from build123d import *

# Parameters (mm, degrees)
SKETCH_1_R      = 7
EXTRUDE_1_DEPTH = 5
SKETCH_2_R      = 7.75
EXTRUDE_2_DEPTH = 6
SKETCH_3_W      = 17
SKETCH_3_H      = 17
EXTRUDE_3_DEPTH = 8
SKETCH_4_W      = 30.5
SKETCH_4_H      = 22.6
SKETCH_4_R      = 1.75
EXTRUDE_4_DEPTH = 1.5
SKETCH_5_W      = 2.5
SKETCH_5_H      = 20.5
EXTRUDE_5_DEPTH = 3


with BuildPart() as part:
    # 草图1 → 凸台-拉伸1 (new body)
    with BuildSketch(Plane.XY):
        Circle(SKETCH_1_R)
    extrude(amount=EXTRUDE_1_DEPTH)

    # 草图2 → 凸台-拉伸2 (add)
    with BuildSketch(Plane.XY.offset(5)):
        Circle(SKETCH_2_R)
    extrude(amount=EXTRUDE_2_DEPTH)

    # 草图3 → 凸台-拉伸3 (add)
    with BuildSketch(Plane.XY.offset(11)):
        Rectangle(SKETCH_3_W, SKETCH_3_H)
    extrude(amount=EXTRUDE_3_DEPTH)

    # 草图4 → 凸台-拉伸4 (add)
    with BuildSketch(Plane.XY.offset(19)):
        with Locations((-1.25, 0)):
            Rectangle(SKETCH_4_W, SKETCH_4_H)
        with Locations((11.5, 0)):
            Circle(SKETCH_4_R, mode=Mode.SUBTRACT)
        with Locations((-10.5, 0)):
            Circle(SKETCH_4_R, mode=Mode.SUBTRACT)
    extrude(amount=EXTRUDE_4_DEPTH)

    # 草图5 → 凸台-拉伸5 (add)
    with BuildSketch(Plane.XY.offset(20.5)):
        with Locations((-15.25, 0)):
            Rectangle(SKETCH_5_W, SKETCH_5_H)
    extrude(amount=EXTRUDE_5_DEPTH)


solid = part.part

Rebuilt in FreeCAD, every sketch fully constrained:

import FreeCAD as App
import Part
import Sketcher

V = App.Vector
Q = App.Units.Quantity

doc = App.newDocument("Part")
params = doc.addObject("Spreadsheet::Sheet", "Params")
for row, (alias, value) in enumerate([
    ("sketch1_diameter", "14 mm"),
    ("pad1_length", "5 mm"),
    ("sketch2_diameter", "15.5 mm"),
    ("pad2_length", "6 mm"),
    ("sketch3_width", "17 mm"),
    ("pad3_length", "8 mm"),
    ("sketch4_diameter", "3.5 mm"),
    ("sketch4_width", "30.5 mm"),
    ("sketch4_height", "22.6 mm"),
    ("pad4_length", "1.5 mm"),
    ("sketch5_width", "2.5 mm"),
    ("sketch5_height", "20.5 mm"),
    ("pad5_length", "3 mm"),
], start=1):
    params.set(f"A{row}", alias)
    params.set(f"B{row}", "=" + value)
    params.setAlias(f"B{row}", alias)

body = doc.addObject("PartDesign::Body", "Body")

sketch1 = body.newObject("Sketcher::SketchObject", "Sketch")
sketch1.AttachmentSupport = (doc.getObject("XY_Plane"), [""])
sketch1.MapMode = "FlatFace"
sketch1.addGeometry(Part.Circle(V(0, 0, 0), V(0, 0, 1), 7), False)
sketch1.addConstraint([
    Sketcher.Constraint("Coincident", 0, 3, -1, 1),
    Sketcher.Constraint("Diameter", 0, Q("14 mm")),
])
sketch1.setExpression("Constraints[1]", "Params.sketch1_diameter")
pad1 = body.newObject("PartDesign::Pad", "Pad")
pad1.Profile = sketch1
pad1.setExpression("Length", "Params.pad1_length")

sketch2 = body.newObject("Sketcher::SketchObject", "Sketch001")
sketch2.AttachmentSupport = (doc.getObject("XY_Plane"), [""])
sketch2.MapMode = "FlatFace"
sketch2.AttachmentOffset = App.Placement(V(0, 0, 5), App.Rotation())
sketch2.addGeometry(Part.Circle(V(0, 0, 0), V(0, 0, 1), 7.75), False)
sketch2.addConstraint([
    Sketcher.Constraint("Coincident", 0, 3, -1, 1),
    Sketcher.Constraint("Diameter", 0, Q("15.5 mm")),
])
sketch2.setExpression("Constraints[1]", "Params.sketch2_diameter")
pad2 = body.newObject("PartDesign::Pad", "Pad001")
pad2.Profile = sketch2
pad2.setExpression("Length", "Params.pad2_length")

sketch3 = body.newObject("Sketcher::SketchObject", "Sketch002")
sketch3.AttachmentSupport = (doc.getObject("XY_Plane"), [""])
sketch3.MapMode = "FlatFace"
sketch3.AttachmentOffset = App.Placement(V(0, 0, 11), App.Rotation())
sketch3.addGeometry([
    Part.LineSegment(V(-8.5, 8.5, 0), V(-8.5, -8.5, 0)),
    Part.LineSegment(V(-8.5, -8.5, 0), V(8.5, -8.5, 0)),
    Part.LineSegment(V(8.5, -8.5, 0), V(8.5, 8.5, 0)),
    Part.LineSegment(V(8.5, 8.5, 0), V(-8.5, 8.5, 0)),
], False)
sketch3.addConstraint([
    Sketcher.Constraint("Coincident", 0, 2, 1, 1),
    Sketcher.Constraint("Coincident", 1, 2, 2, 1),
    Sketcher.Constraint("Coincident", 2, 2, 3, 1),
    Sketcher.Constraint("Coincident", 3, 2, 0, 1),
    Sketcher.Constraint("Vertical", 0),
    Sketcher.Constraint("Horizontal", 1),
    Sketcher.Constraint("Vertical", 2),
    Sketcher.Constraint("Horizontal", 3),
    Sketcher.Constraint("Symmetric", 0, 2, 2, 2, -1, 1),
    Sketcher.Constraint("Equal", 3, 0),
    Sketcher.Constraint("DistanceX", 1, 1, 1, 2, Q("17 mm")),
])
sketch3.setExpression("Constraints[10]", "Params.sketch3_width")
pad3 = body.newObject("PartDesign::Pad", "Pad002")
pad3.Profile = sketch3
pad3.setExpression("Length", "Params.pad3_length")

sketch4 = body.newObject("Sketcher::SketchObject", "Sketch003")
sketch4.AttachmentSupport = (doc.getObject("XY_Plane"), [""])
sketch4.MapMode = "FlatFace"
sketch4.AttachmentOffset = App.Placement(V(0, 0, 19), App.Rotation())
sketch4.addGeometry([
    Part.LineSegment(V(-16.5, 11.3, 0), V(-16.5, -11.3, 0)),
    Part.LineSegment(V(-16.5, -11.3, 0), V(14, -11.3, 0)),
    Part.LineSegment(V(14, -11.3, 0), V(14, 11.3, 0)),
    Part.LineSegment(V(14, 11.3, 0), V(-16.5, 11.3, 0)),
    Part.Circle(V(-10.5, 0, 0), V(0, 0, 1), 1.75),
    Part.Circle(V(11.5, 0, 0), V(0, 0, 1), 1.75),
], False)
sketch4.addConstraint([
    Sketcher.Constraint("Coincident", 0, 2, 1, 1),
    Sketcher.Constraint("Coincident", 1, 2, 2, 1),
    Sketcher.Constraint("Coincident", 2, 2, 3, 1),
    Sketcher.Constraint("Coincident", 3, 2, 0, 1),
    Sketcher.Constraint("Vertical", 0),
    Sketcher.Constraint("Horizontal", 1),
    Sketcher.Constraint("Vertical", 2),
    Sketcher.Constraint("Horizontal", 3),
    Sketcher.Constraint("Equal", 4, 5),
    Sketcher.Constraint("PointOnObject", 4, 3, -1),
    Sketcher.Constraint("PointOnObject", 5, 3, -1),
    Sketcher.Constraint("Diameter", 4, Q("3.5 mm")),
    Sketcher.Constraint("DistanceX", 1, 1, 1, 2, Q("30.5 mm")),
    Sketcher.Constraint("DistanceY", 0, 2, 0, 1, Q("22.6 mm")),
    Sketcher.Constraint("DistanceX", -1, 1, 1, 2, Q("14 mm")),
    Sketcher.Constraint("DistanceX", 4, 3, 5, 3, Q("22 mm")),
    Sketcher.Constraint("DistanceX", 0, 2, 4, 3, Q("6 mm")),
    Sketcher.Constraint("DistanceY", 0, 2, -1, 1, Q("11.3 mm")),
])
sketch4.setExpression("Constraints[11]", "Params.sketch4_diameter")
sketch4.setExpression("Constraints[12]", "Params.sketch4_width")
sketch4.setExpression("Constraints[13]", "Params.sketch4_height")
pad4 = body.newObject("PartDesign::Pad", "Pad003")
pad4.Profile = sketch4
pad4.setExpression("Length", "Params.pad4_length")

sketch5 = body.newObject("Sketcher::SketchObject", "Sketch004")
sketch5.AttachmentSupport = (doc.getObject("XY_Plane"), [""])
sketch5.MapMode = "FlatFace"
sketch5.AttachmentOffset = App.Placement(V(0, 0, 20.5), App.Rotation())
sketch5.addGeometry([
    Part.LineSegment(V(-16.5, 10.25, 0), V(-16.5, -10.25, 0)),
    Part.LineSegment(V(-16.5, -10.25, 0), V(-14, -10.25, 0)),
    Part.LineSegment(V(-14, -10.25, 0), V(-14, 10.25, 0)),
    Part.LineSegment(V(-14, 10.25, 0), V(-16.5, 10.25, 0)),
], False)
sketch5.addConstraint([
    Sketcher.Constraint("Coincident", 0, 2, 1, 1),
    Sketcher.Constraint("Coincident", 1, 2, 2, 1),
    Sketcher.Constraint("Coincident", 2, 2, 3, 1),
    Sketcher.Constraint("Coincident", 3, 2, 0, 1),
    Sketcher.Constraint("Vertical", 0),
    Sketcher.Constraint("Horizontal", 1),
    Sketcher.Constraint("Vertical", 2),
    Sketcher.Constraint("Horizontal", 3),
    Sketcher.Constraint("DistanceX", 1, 1, 1, 2, Q("2.5 mm")),
    Sketcher.Constraint("DistanceY", 0, 2, 0, 1, Q("20.5 mm")),
    Sketcher.Constraint("DistanceX", 1, 2, -1, 1, Q("14 mm")),
    Sketcher.Constraint("DistanceY", 0, 2, -1, 1, Q("10.25 mm")),
])
sketch5.setExpression("Constraints[8]", "Params.sketch5_width")
sketch5.setExpression("Constraints[9]", "Params.sketch5_height")
pad5 = body.newObject("PartDesign::Pad", "Pad004")
pad5.Profile = sketch5
pad5.setExpression("Length", "Params.pad5_length")

doc.recompute()
